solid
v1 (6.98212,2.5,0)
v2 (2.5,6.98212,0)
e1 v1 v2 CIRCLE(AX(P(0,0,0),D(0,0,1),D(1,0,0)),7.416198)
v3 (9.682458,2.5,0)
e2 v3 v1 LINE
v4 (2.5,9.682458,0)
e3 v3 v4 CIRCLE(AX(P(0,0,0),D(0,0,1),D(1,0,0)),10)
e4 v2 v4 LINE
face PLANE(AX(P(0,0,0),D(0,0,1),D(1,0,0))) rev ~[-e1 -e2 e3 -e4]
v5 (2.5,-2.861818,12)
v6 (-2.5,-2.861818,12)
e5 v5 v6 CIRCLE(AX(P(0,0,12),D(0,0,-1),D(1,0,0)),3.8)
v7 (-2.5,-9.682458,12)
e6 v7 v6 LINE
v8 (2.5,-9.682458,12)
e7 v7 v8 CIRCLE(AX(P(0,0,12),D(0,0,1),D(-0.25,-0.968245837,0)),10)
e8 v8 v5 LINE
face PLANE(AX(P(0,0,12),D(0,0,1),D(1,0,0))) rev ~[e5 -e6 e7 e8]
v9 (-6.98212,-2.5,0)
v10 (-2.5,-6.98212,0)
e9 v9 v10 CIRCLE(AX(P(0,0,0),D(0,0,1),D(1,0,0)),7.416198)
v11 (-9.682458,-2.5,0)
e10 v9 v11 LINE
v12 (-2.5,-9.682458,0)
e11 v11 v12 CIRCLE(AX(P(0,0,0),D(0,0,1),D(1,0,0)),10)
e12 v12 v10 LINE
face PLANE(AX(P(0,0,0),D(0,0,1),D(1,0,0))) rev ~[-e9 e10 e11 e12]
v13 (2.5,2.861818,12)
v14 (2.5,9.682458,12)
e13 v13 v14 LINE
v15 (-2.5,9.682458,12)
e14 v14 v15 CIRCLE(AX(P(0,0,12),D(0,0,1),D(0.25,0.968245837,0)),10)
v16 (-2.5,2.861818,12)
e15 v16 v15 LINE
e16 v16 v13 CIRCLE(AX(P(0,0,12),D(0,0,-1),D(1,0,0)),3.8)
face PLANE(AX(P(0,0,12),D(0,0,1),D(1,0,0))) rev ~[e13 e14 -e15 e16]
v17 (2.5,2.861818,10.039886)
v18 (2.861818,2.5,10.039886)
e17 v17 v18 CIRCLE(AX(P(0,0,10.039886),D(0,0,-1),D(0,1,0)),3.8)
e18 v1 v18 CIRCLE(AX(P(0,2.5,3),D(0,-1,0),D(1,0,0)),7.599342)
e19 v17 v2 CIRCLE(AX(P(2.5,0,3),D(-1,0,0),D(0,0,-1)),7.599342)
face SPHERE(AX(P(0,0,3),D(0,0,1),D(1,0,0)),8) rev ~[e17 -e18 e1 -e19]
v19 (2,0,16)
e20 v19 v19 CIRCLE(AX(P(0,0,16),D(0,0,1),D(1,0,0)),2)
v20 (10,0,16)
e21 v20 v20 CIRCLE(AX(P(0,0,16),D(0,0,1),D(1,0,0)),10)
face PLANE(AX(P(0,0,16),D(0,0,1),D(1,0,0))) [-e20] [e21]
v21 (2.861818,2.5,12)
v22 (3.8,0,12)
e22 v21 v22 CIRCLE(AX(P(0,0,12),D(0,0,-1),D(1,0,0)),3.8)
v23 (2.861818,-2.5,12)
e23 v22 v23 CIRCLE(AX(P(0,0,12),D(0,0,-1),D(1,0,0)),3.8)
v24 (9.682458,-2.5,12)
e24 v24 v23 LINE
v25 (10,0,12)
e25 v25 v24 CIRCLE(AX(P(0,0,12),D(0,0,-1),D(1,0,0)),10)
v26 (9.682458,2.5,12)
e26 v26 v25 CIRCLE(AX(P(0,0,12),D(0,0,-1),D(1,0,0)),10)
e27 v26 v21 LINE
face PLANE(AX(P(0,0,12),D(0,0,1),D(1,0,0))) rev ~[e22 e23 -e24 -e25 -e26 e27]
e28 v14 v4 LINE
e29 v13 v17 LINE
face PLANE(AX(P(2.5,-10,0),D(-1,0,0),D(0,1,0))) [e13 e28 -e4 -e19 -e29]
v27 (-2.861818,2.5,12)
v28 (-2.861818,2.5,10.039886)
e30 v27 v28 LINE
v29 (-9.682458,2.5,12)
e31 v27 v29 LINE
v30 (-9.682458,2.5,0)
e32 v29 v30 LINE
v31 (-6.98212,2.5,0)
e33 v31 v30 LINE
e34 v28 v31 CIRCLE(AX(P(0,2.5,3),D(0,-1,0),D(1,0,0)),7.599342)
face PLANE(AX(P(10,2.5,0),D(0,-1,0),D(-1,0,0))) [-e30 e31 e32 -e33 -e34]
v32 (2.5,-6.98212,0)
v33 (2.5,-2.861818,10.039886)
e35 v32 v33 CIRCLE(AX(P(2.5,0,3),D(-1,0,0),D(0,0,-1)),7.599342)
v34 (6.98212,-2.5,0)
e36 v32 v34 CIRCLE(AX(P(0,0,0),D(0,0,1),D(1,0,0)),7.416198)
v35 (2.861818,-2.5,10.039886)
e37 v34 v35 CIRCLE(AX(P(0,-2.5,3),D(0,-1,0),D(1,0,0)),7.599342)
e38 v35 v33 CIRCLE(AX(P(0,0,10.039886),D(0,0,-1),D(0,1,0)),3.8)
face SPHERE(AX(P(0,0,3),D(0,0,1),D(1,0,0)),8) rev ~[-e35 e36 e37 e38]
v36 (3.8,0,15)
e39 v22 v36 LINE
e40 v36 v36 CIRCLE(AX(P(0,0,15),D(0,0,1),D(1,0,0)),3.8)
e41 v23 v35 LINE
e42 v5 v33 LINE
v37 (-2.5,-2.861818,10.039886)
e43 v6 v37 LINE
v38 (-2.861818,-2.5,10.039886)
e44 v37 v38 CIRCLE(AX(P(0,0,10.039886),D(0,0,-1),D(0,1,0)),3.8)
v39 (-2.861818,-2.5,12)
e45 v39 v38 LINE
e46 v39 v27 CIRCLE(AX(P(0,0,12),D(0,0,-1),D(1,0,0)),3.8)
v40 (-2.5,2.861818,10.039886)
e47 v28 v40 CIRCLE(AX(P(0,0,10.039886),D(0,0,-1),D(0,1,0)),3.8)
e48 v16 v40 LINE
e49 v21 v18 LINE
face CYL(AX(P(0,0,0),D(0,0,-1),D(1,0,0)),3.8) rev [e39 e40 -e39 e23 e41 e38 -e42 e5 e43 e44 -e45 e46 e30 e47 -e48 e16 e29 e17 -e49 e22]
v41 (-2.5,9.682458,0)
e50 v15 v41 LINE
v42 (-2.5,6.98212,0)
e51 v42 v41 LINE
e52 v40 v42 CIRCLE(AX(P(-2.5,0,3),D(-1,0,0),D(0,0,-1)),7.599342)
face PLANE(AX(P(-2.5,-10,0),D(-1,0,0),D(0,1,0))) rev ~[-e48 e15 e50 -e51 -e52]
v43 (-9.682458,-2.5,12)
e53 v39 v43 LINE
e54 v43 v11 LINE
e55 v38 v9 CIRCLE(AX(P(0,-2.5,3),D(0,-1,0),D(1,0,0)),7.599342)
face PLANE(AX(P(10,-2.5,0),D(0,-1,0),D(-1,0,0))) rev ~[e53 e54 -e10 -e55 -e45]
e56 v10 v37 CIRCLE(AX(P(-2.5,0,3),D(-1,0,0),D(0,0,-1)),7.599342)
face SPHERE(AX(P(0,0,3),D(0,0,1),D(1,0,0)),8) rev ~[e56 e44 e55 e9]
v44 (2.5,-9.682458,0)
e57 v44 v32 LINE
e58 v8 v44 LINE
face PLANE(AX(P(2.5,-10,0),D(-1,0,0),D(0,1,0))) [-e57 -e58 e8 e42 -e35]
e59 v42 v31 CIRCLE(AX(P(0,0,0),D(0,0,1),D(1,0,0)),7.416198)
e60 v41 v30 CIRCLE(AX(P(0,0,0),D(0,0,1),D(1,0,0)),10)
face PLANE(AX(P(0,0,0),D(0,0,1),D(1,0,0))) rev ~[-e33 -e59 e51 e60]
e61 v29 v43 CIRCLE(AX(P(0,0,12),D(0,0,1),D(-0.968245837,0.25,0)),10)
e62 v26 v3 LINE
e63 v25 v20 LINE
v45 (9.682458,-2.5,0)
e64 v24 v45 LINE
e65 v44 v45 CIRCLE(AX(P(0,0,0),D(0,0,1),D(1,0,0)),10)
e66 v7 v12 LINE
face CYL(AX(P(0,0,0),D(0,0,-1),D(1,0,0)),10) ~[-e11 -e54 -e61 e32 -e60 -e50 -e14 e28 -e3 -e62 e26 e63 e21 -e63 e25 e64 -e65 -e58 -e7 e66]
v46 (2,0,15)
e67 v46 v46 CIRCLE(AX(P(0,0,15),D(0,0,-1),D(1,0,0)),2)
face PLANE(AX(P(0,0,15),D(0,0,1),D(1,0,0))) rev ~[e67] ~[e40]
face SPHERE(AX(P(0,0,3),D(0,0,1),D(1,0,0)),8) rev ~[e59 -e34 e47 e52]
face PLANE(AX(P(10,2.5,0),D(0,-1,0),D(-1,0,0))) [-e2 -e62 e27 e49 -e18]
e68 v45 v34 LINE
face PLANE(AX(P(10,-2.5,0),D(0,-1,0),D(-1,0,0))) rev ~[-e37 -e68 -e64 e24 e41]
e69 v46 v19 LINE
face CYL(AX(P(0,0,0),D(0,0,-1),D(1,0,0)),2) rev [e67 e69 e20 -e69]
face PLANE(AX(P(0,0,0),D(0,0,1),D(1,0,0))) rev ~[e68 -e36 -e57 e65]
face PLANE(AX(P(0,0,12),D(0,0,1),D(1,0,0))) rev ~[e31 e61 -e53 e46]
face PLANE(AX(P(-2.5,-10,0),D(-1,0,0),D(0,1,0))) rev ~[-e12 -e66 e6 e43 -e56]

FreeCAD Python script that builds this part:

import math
import FreeCAD as App
import Part
import Sketcher
Q = App.Units.Quantity

doc = App.newDocument("Part")
params = doc.addObject("Spreadsheet::Sheet", "Params")
for row, (alias, value) in enumerate([
    ("sketch1_diameter", "7.6 mm"),
    ("pad1_length", "15 mm"),
    ("sketch2_diameter", "4 mm"),
    ("pad2_length", "16 mm"),
    ("sketch3_width", "5 mm"),
    ("sketch3_height", "20 mm"),
    ("pad3_length", "12 mm"),
    ("sketch4_width", "5 mm"),
    ("sketch4_height", "20 mm"),
    ("pad4_length", "12 mm"),
    ("sketch5_radius", "8 mm"),
    ("revolution_angle", "360 deg"),
    ("sketch6_diameter", "20 mm"),
    ("pad5_length", "16 mm"),
], start=1):
    params.set(f"A{row}", alias)
    params.set(f"B{row}", "=" + value)
    params.setAlias(f"B{row}", alias)

body = doc.addObject("PartDesign::Body", "Body")

# Sketch on XY plane
sketch1 = body.newObject("Sketcher::SketchObject", "Sketch")
sketch1.AttachmentSupport = (doc.getObject("XY_Plane"), [""])
sketch1.MapMode = "FlatFace"
sketch1.addGeometry(Part.Circle(App.Vector(0, 0, 0), App.Vector(0, 0, 1), 3.8), False)
sketch1.addConstraint([
    Sketcher.Constraint("Coincident", 0, 3, -1, 1),
    Sketcher.Constraint("Diameter", 0, Q("7.6 mm")),
])
sketch1.setExpression("Constraints[1]", "Params.sketch1_diameter")
pad1 = body.newObject("PartDesign::Pad", "Pad")
pad1.Profile = sketch1
pad1.setExpression("Length", "Params.pad1_length")
body2 = doc.addObject("PartDesign::Body", "Body001")

# Sketch on XY plane
sketch2 = body2.newObject("Sketcher::SketchObject", "Sketch001")
sketch2.AttachmentSupport = (doc.getObject("XY_Plane001"), [""])
sketch2.MapMode = "FlatFace"
sketch2.addGeometry(Part.Circle(App.Vector(0, 0, 0), App.Vector(0, 0, 1), 2), False)
sketch2.addConstraint([
    Sketcher.Constraint("Coincident", 0, 3, -1, 1),
    Sketcher.Constraint("Diameter", 0, Q("4 mm")),
])
sketch2.setExpression("Constraints[1]", "Params.sketch2_diameter")
pad2 = body2.newObject("PartDesign::Pad", "Pad001")
pad2.Profile = sketch2
pad2.setExpression("Length", "Params.pad2_length")
doc.recompute()

boolean = body2.newObject("PartDesign::Boolean", "Boolean")
boolean.Type = "Fuse"
boolean.addObjects([body])
body3 = doc.addObject("PartDesign::Body", "Body002")

# Sketch on XY plane
sketch3 = body3.newObject("Sketcher::SketchObject", "Sketch002")
sketch3.AttachmentSupport = (doc.getObject("XY_Plane002"), [""])
sketch3.MapMode = "FlatFace"
sketch3.addGeometry([
    Part.LineSegment(App.Vector(-2, 10, 0), App.Vector(-2, -10, 0)),
    Part.LineSegment(App.Vector(-2, -10, 0), App.Vector(2, -10, 0)),
    Part.LineSegment(App.Vector(2, -10, 0), App.Vector(2, 10, 0)),
    Part.LineSegment(App.Vector(2, 10, 0), App.Vector(-2, 10, 0)),
], False)
sketch3.addConstraint([
    Sketcher.Constraint("Coincident", 0, 2, 1, 1),
    Sketcher.Constraint("Coincident", 1, 2, 2, 1),
    Sketcher.Constraint("Coincident", 2, 2, 3, 1),
    Sketcher.Constraint("Coincident", 3, 2, 0, 1),
    Sketcher.Constraint("Vertical", 0),
    Sketcher.Constraint("Horizontal", 1),
    Sketcher.Constraint("Vertical", 2),
    Sketcher.Constraint("Horizontal", 3),
    Sketcher.Constraint("Symmetric", 0, 2, 2, 2, -1, 1),
    Sketcher.Constraint("DistanceX", 1, 1, 1, 2, Q("5 mm")),
    Sketcher.Constraint("DistanceY", 0, 2, 0, 1, Q("20 mm")),
])
sketch3.setExpression("Constraints[9]", "Params.sketch3_width")
sketch3.setExpression("Constraints[10]", "Params.sketch3_height")
pad3 = body3.newObject("PartDesign::Pad", "Pad002")
pad3.Profile = sketch3
pad3.setExpression("Length", "Params.pad3_length")
body4 = doc.addObject("PartDesign::Body", "Body003")

# Sketch on XY plane
sketch4 = body4.newObject("Sketcher::SketchObject", "Sketch003")
sketch4.AttachmentSupport = (doc.getObject("XY_Plane003"), [""])
sketch4.MapMode = "FlatFace"
sketch4.addGeometry([
    Part.LineSegment(App.Vector(0, 20, 0), App.Vector(0, 0, 0)),
    Part.LineSegment(App.Vector(0, 0, 0), App.Vector(5, 0, 0)),
    Part.LineSegment(App.Vector(5, 0, 0), App.Vector(5, 20, 0)),
    Part.LineSegment(App.Vector(5, 20, 0), App.Vector(0, 20, 0)),
], False)
sketch4.addConstraint([
    Sketcher.Constraint("Coincident", 0, 2, 1, 1),
    Sketcher.Constraint("Coincident", 1, 2, 2, 1),
    Sketcher.Constraint("Coincident", 2, 2, 3, 1),
    Sketcher.Constraint("Coincident", 3, 2, 0, 1),
    Sketcher.Constraint("Vertical", 0),
    Sketcher.Constraint("Horizontal", 1),
    Sketcher.Constraint("Vertical", 2),
    Sketcher.Constraint("Horizontal", 3),
    Sketcher.Constraint("Coincident", 0, 2, -1, 1),
    Sketcher.Constraint("DistanceX", 1, 1, 1, 2, Q("5 mm")),
    Sketcher.Constraint("DistanceY", 0, 2, 0, 1, Q("20 mm")),
])
sketch4.setExpression("Constraints[9]", "Params.sketch4_width")
sketch4.setExpression("Constraints[10]", "Params.sketch4_height")
pad4 = body4.newObject("PartDesign::Pad", "Pad003")
pad4.Profile = sketch4
pad4.setExpression("Length", "Params.pad4_length")
body5 = doc.addObject("PartDesign::Body", "Body004")
doc.recompute()

body4.Placement = App.Placement(App.Vector(10, -2.5, 0), App.Rotation(App.Vector(0, 0, 1), 90))
boolean2 = body5.newObject("PartDesign::Boolean", "Boolean001")
boolean2.Type = "Fuse"
boolean2.addObjects([body4])
doc.recompute()

boolean3 = body5.newObject("PartDesign::Boolean", "Boolean002")
boolean3.Type = "Fuse"
boolean3.addObjects([body3])
body6 = doc.addObject("PartDesign::Body", "Body005")

# Sketch on XZ plane
sketch5 = body6.newObject("Sketcher::SketchObject", "Sketch004")
sketch5.AttachmentSupport = (doc.getObject("XZ_Plane005"), [""])
sketch5.MapMode = "FlatFace"
sketch5.addGeometry([
    Part.ArcOfCircle(Part.Circle(App.Vector(0, 3, 0), App.Vector(0, 0, 1), 8), math.radians(-90), math.radians(90)),
    Part.LineSegment(App.Vector(0, 11, 0), App.Vector(0, -5, 0)),
], False)
sketch5.addConstraint([
    Sketcher.Constraint("Coincident", 0, 1, 1, 2),
    Sketcher.Constraint("Coincident", 1, 1, 0, 2),
    Sketcher.Constraint("Vertical", 1),
    Sketcher.Constraint("PointOnObject", 0, 3, -2),
    Sketcher.Constraint("PointOnObject", 0, 1, -2),
    Sketcher.Constraint("Radius", 0, Q("8 mm")),
    Sketcher.Constraint("DistanceY", -1, 1, 0, 3, Q("3 mm")),
])
sketch5.setExpression("Constraints[5]", "Params.sketch5_radius")
revolution = body6.newObject("PartDesign::Revolution", "Revolution")
revolution.Profile = sketch5
revolution.ReferenceAxis = (sketch5, ["V_Axis"])
revolution.setExpression("Angle", "Params.revolution_angle")
body7 = doc.addObject("PartDesign::Body", "Body006")

# Sketch on XY plane
sketch6 = body7.newObject("Sketcher::SketchObject", "Sketch005")
sketch6.AttachmentSupport = (doc.getObject("XY_Plane006"), [""])
sketch6.MapMode = "FlatFace"
sketch6.addGeometry(Part.Circle(App.Vector(0, 0, 0), App.Vector(0, 0, 1), 10), False)
sketch6.addConstraint([
    Sketcher.Constraint("Coincident", 0, 3, -1, 1),
    Sketcher.Constraint("Diameter", 0, Q("20 mm")),
])
sketch6.setExpression("Constraints[1]", "Params.sketch6_diameter")
pad5 = body7.newObject("PartDesign::Pad", "Pad004")
pad5.Profile = sketch6
pad5.setExpression("Length", "Params.pad5_length")
doc.recompute()

boolean4 = body7.newObject("PartDesign::Boolean", "Boolean003")
boolean4.Type = "Cut"
boolean4.addObjects([body6])
doc.recompute()

boolean5 = body7.newObject("PartDesign::Boolean", "Boolean004")
boolean5.Type = "Cut"
boolean5.addObjects([body5])
doc.recompute()

boolean6 = body7.newObject("PartDesign::Boolean", "Boolean005")
boolean6.Type = "Cut"
boolean6.addObjects([body2])

doc.recompute()
